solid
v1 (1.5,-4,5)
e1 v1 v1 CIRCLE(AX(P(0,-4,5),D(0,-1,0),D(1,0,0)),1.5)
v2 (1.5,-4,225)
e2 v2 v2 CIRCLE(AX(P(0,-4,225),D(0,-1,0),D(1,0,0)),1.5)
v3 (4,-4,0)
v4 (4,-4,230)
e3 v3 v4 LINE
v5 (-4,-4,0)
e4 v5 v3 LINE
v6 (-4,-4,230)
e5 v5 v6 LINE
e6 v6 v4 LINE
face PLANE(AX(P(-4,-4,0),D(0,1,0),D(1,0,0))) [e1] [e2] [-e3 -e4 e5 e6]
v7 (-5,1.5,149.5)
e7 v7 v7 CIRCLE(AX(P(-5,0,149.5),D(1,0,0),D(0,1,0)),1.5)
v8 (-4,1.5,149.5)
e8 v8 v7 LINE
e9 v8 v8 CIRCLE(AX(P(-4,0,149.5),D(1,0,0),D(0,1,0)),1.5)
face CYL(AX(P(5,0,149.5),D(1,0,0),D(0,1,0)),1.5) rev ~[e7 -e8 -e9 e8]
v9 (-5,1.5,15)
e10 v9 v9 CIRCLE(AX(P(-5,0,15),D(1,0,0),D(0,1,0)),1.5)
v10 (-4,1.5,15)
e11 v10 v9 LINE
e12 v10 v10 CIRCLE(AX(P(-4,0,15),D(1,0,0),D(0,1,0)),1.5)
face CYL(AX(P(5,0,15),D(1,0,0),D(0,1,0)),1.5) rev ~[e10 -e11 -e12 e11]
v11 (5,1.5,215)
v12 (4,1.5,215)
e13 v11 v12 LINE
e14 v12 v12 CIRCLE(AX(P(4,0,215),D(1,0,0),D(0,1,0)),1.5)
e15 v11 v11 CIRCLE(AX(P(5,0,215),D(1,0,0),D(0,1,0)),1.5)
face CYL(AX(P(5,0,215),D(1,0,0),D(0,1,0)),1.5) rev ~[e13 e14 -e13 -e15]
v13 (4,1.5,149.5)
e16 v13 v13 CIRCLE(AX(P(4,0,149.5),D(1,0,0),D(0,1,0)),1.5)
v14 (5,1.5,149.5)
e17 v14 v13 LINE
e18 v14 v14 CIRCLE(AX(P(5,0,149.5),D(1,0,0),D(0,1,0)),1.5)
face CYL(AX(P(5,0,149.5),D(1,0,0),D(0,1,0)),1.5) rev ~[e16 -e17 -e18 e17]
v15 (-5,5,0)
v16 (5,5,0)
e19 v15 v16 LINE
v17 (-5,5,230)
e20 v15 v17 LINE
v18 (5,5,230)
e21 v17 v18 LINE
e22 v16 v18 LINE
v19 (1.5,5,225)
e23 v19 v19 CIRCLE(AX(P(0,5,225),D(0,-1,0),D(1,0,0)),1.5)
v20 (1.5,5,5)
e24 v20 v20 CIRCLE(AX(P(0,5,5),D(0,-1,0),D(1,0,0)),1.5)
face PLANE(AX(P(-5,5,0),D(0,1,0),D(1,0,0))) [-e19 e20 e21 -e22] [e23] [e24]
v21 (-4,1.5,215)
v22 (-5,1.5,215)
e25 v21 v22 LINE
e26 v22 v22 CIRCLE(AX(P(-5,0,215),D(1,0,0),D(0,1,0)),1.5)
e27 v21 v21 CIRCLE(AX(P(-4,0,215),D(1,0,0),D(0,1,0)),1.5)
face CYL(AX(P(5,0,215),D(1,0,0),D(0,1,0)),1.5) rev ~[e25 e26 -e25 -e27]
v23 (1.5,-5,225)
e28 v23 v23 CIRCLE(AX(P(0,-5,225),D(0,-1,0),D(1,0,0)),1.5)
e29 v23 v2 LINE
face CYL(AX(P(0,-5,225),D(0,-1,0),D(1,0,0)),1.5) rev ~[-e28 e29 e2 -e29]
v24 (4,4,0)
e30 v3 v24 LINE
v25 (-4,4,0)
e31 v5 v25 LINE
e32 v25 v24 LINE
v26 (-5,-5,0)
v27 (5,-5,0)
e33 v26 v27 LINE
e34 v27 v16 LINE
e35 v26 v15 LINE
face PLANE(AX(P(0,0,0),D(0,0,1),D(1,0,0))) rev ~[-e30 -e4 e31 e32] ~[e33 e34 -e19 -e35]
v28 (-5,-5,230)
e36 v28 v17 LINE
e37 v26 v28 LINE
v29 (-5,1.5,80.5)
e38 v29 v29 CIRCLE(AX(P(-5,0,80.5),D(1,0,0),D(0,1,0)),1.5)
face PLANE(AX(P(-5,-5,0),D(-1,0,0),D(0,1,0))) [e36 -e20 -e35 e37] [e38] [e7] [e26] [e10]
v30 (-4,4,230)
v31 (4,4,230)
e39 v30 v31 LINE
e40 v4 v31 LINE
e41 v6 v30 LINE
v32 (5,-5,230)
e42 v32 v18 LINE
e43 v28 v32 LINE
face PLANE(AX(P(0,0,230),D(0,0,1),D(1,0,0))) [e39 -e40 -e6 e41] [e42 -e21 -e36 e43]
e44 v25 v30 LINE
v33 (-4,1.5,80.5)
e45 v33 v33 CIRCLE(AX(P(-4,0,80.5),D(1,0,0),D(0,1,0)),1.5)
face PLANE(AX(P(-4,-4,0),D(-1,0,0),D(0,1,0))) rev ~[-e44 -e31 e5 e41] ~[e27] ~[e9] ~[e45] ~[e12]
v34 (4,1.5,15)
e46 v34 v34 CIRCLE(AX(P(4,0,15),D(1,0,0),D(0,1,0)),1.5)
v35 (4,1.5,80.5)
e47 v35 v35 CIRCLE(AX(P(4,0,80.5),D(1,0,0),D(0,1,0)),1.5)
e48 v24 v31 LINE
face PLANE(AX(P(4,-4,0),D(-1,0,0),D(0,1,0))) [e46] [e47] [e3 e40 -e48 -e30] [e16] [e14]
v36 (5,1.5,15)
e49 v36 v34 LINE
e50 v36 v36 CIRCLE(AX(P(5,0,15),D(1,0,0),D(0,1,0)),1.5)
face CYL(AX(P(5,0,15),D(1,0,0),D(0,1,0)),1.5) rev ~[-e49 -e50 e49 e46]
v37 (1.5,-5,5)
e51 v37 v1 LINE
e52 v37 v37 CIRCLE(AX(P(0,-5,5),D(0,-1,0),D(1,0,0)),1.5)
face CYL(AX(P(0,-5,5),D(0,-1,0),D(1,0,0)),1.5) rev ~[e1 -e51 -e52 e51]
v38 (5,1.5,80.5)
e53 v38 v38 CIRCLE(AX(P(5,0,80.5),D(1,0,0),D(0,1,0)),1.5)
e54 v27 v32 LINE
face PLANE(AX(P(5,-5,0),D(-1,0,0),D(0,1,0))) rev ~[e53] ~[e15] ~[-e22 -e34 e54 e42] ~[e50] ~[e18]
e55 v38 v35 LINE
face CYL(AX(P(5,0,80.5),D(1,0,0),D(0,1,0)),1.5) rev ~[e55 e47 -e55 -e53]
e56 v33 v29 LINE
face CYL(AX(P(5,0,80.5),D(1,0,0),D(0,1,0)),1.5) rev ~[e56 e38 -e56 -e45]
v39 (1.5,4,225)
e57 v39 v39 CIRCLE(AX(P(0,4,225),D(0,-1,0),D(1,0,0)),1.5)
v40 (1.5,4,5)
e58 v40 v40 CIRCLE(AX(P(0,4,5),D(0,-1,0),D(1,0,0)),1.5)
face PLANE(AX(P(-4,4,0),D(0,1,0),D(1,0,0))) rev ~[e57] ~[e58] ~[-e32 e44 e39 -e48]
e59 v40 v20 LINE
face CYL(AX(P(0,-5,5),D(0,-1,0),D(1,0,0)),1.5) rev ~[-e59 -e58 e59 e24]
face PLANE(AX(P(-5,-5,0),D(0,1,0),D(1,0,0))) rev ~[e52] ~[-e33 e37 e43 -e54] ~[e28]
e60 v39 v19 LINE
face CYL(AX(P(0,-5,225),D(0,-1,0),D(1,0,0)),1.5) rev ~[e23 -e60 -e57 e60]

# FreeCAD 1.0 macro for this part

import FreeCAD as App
import Part
import Sketcher


def add_polygon(sketch, points):
    """Adds a closed chain of lines whose ends are joined by coincident constraints."""
    first, n = sketch.GeometryCount, len(points)
    for a, b in zip(points, points[1:] + points[:1]):
        sketch.addGeometry(Part.LineSegment(App.Vector(*a, 0), App.Vector(*b, 0)), False)
    for i in range(n):
        sketch.addConstraint(Sketcher.Constraint("Coincident", first + i, 2, first + (i + 1) % n, 1))

doc = App.newDocument("Part")
body = doc.addObject("PartDesign::Body", "Body")

sketch1 = body.newObject("Sketcher::SketchObject", "Sketch")
sketch1.AttachmentSupport = (doc.getObject("XY_Plane"), [""])
sketch1.MapMode = "FlatFace"
add_polygon(sketch1, [(-5, 5), (-5, -5), (5, -5), (5, 5)])
add_polygon(sketch1, [(4, -4), (-4, -4), (-4, 4), (4, 4)])
sketch1.addConstraint(Sketcher.Constraint("Vertical", 0))
sketch1.addConstraint(Sketcher.Constraint("Horizontal", 1))
sketch1.addConstraint(Sketcher.Constraint("Vertical", 2))
sketch1.addConstraint(Sketcher.Constraint("Horizontal", 3))
sketch1.addConstraint(Sketcher.Constraint("Horizontal", 4))
sketch1.addConstraint(Sketcher.Constraint("Vertical", 5))
sketch1.addConstraint(Sketcher.Constraint("Horizontal", 6))
sketch1.addConstraint(Sketcher.Constraint("Vertical", 7))
sketch1.addConstraint(Sketcher.Constraint("Symmetric", 0, 2, 2, 2, -1, 1))
sketch1.addConstraint(Sketcher.Constraint("Symmetric", 4, 2, 6, 2, -1, 1))
sketch1.addConstraint(Sketcher.Constraint("Equal", 3, 0))
sketch1.addConstraint(Sketcher.Constraint("Equal", 6, 5))
sketch1.addConstraint(Sketcher.Constraint("DistanceX", 1, 1, 1, 2, 10.0))
sketch1.addConstraint(Sketcher.Constraint("DistanceX", 4, 2, 4, 1, 8.0))
pad1 = body.newObject("PartDesign::Pad", "Pad")
pad1.Profile = sketch1
pad1.Length = 230

sketch2 = body.newObject("Sketcher::SketchObject", "Sketch001")
sketch2.AttachmentSupport = (doc.getObject("YZ_Plane"), [""])
sketch2.MapMode = "FlatFace"
sketch2.AttachmentOffset = App.Placement(App.Vector(0, 0, 5), App.Rotation())
sketch2.addGeometry(Part.Circle(App.Vector(0, 80.5, 0), App.Vector(0, 0, 1), 1.5), False)
sketch2.addGeometry(Part.Circle(App.Vector(0, 15, 0), App.Vector(0, 0, 1), 1.5), False)
sketch2.addGeometry(Part.Circle(App.Vector(0, 149.5, 0), App.Vector(0, 0, 1), 1.5), False)
sketch2.addGeometry(Part.Circle(App.Vector(0, 215, 0), App.Vector(0, 0, 1), 1.5), False)
sketch2.addConstraint(Sketcher.Constraint("Equal", 0, 1))
sketch2.addConstraint(Sketcher.Constraint("Equal", 1, 2))
sketch2.addConstraint(Sketcher.Constraint("Equal", 2, 3))
sketch2.addConstraint(Sketcher.Constraint("PointOnObject", 0, 3, -2))
sketch2.addConstraint(Sketcher.Constraint("PointOnObject", 1, 3, -2))
sketch2.addConstraint(Sketcher.Constraint("PointOnObject", 2, 3, -2))
sketch2.addConstraint(Sketcher.Constraint("PointOnObject", 3, 3, -2))
sketch2.addConstraint(Sketcher.Constraint("Diameter", 0, 3.0))
sketch2.addConstraint(Sketcher.Constraint("DistanceY", -1, 1, 1, 3, 15.0))
sketch2.addConstraint(Sketcher.Constraint("DistanceY", -1, 1, 3, 3, 215.0))
sketch2.addConstraint(Sketcher.Constraint("DistanceY", 0, 3, 2, 3, 69.0))
sketch2.addConstraint(Sketcher.Constraint("DistanceY", -1, 1, 0, 3, 80.5))
pocket1 = body.newObject("PartDesign::Pocket", "Pocket")
pocket1.Profile = sketch2
pocket1.Length = 25

sketch3 = body.newObject("Sketcher::SketchObject", "Sketch002")
sketch3.AttachmentSupport = (doc.getObject("XZ_Plane"), [""])
sketch3.MapMode = "FlatFace"
sketch3.AttachmentOffset = App.Placement(App.Vector(0, 0, 5), App.Rotation())
sketch3.addGeometry(Part.Circle(App.Vector(0, 5, 0), App.Vector(0, 0, 1), 1.5), False)
sketch3.addGeometry(Part.Circle(App.Vector(0, 225, 0), App.Vector(0, 0, 1), 1.5), False)
sketch3.addConstraint(Sketcher.Constraint("Equal", 0, 1))
sketch3.addConstraint(Sketcher.Constraint("PointOnObject", 0, 3, -2))
sketch3.addConstraint(Sketcher.Constraint("PointOnObject", 1, 3, -2))
sketch3.addConstraint(Sketcher.Constraint("Diameter", 0, 3.0))
sketch3.addConstraint(Sketcher.Constraint("DistanceY", -1, 1, 0, 3, 5.0))
sketch3.addConstraint(Sketcher.Constraint("DistanceY", -1, 1, 1, 3, 225.0))
pocket2 = body.newObject("PartDesign::Pocket", "Pocket001")
pocket2.Profile = sketch3
pocket2.Length = 25

doc.recompute()
